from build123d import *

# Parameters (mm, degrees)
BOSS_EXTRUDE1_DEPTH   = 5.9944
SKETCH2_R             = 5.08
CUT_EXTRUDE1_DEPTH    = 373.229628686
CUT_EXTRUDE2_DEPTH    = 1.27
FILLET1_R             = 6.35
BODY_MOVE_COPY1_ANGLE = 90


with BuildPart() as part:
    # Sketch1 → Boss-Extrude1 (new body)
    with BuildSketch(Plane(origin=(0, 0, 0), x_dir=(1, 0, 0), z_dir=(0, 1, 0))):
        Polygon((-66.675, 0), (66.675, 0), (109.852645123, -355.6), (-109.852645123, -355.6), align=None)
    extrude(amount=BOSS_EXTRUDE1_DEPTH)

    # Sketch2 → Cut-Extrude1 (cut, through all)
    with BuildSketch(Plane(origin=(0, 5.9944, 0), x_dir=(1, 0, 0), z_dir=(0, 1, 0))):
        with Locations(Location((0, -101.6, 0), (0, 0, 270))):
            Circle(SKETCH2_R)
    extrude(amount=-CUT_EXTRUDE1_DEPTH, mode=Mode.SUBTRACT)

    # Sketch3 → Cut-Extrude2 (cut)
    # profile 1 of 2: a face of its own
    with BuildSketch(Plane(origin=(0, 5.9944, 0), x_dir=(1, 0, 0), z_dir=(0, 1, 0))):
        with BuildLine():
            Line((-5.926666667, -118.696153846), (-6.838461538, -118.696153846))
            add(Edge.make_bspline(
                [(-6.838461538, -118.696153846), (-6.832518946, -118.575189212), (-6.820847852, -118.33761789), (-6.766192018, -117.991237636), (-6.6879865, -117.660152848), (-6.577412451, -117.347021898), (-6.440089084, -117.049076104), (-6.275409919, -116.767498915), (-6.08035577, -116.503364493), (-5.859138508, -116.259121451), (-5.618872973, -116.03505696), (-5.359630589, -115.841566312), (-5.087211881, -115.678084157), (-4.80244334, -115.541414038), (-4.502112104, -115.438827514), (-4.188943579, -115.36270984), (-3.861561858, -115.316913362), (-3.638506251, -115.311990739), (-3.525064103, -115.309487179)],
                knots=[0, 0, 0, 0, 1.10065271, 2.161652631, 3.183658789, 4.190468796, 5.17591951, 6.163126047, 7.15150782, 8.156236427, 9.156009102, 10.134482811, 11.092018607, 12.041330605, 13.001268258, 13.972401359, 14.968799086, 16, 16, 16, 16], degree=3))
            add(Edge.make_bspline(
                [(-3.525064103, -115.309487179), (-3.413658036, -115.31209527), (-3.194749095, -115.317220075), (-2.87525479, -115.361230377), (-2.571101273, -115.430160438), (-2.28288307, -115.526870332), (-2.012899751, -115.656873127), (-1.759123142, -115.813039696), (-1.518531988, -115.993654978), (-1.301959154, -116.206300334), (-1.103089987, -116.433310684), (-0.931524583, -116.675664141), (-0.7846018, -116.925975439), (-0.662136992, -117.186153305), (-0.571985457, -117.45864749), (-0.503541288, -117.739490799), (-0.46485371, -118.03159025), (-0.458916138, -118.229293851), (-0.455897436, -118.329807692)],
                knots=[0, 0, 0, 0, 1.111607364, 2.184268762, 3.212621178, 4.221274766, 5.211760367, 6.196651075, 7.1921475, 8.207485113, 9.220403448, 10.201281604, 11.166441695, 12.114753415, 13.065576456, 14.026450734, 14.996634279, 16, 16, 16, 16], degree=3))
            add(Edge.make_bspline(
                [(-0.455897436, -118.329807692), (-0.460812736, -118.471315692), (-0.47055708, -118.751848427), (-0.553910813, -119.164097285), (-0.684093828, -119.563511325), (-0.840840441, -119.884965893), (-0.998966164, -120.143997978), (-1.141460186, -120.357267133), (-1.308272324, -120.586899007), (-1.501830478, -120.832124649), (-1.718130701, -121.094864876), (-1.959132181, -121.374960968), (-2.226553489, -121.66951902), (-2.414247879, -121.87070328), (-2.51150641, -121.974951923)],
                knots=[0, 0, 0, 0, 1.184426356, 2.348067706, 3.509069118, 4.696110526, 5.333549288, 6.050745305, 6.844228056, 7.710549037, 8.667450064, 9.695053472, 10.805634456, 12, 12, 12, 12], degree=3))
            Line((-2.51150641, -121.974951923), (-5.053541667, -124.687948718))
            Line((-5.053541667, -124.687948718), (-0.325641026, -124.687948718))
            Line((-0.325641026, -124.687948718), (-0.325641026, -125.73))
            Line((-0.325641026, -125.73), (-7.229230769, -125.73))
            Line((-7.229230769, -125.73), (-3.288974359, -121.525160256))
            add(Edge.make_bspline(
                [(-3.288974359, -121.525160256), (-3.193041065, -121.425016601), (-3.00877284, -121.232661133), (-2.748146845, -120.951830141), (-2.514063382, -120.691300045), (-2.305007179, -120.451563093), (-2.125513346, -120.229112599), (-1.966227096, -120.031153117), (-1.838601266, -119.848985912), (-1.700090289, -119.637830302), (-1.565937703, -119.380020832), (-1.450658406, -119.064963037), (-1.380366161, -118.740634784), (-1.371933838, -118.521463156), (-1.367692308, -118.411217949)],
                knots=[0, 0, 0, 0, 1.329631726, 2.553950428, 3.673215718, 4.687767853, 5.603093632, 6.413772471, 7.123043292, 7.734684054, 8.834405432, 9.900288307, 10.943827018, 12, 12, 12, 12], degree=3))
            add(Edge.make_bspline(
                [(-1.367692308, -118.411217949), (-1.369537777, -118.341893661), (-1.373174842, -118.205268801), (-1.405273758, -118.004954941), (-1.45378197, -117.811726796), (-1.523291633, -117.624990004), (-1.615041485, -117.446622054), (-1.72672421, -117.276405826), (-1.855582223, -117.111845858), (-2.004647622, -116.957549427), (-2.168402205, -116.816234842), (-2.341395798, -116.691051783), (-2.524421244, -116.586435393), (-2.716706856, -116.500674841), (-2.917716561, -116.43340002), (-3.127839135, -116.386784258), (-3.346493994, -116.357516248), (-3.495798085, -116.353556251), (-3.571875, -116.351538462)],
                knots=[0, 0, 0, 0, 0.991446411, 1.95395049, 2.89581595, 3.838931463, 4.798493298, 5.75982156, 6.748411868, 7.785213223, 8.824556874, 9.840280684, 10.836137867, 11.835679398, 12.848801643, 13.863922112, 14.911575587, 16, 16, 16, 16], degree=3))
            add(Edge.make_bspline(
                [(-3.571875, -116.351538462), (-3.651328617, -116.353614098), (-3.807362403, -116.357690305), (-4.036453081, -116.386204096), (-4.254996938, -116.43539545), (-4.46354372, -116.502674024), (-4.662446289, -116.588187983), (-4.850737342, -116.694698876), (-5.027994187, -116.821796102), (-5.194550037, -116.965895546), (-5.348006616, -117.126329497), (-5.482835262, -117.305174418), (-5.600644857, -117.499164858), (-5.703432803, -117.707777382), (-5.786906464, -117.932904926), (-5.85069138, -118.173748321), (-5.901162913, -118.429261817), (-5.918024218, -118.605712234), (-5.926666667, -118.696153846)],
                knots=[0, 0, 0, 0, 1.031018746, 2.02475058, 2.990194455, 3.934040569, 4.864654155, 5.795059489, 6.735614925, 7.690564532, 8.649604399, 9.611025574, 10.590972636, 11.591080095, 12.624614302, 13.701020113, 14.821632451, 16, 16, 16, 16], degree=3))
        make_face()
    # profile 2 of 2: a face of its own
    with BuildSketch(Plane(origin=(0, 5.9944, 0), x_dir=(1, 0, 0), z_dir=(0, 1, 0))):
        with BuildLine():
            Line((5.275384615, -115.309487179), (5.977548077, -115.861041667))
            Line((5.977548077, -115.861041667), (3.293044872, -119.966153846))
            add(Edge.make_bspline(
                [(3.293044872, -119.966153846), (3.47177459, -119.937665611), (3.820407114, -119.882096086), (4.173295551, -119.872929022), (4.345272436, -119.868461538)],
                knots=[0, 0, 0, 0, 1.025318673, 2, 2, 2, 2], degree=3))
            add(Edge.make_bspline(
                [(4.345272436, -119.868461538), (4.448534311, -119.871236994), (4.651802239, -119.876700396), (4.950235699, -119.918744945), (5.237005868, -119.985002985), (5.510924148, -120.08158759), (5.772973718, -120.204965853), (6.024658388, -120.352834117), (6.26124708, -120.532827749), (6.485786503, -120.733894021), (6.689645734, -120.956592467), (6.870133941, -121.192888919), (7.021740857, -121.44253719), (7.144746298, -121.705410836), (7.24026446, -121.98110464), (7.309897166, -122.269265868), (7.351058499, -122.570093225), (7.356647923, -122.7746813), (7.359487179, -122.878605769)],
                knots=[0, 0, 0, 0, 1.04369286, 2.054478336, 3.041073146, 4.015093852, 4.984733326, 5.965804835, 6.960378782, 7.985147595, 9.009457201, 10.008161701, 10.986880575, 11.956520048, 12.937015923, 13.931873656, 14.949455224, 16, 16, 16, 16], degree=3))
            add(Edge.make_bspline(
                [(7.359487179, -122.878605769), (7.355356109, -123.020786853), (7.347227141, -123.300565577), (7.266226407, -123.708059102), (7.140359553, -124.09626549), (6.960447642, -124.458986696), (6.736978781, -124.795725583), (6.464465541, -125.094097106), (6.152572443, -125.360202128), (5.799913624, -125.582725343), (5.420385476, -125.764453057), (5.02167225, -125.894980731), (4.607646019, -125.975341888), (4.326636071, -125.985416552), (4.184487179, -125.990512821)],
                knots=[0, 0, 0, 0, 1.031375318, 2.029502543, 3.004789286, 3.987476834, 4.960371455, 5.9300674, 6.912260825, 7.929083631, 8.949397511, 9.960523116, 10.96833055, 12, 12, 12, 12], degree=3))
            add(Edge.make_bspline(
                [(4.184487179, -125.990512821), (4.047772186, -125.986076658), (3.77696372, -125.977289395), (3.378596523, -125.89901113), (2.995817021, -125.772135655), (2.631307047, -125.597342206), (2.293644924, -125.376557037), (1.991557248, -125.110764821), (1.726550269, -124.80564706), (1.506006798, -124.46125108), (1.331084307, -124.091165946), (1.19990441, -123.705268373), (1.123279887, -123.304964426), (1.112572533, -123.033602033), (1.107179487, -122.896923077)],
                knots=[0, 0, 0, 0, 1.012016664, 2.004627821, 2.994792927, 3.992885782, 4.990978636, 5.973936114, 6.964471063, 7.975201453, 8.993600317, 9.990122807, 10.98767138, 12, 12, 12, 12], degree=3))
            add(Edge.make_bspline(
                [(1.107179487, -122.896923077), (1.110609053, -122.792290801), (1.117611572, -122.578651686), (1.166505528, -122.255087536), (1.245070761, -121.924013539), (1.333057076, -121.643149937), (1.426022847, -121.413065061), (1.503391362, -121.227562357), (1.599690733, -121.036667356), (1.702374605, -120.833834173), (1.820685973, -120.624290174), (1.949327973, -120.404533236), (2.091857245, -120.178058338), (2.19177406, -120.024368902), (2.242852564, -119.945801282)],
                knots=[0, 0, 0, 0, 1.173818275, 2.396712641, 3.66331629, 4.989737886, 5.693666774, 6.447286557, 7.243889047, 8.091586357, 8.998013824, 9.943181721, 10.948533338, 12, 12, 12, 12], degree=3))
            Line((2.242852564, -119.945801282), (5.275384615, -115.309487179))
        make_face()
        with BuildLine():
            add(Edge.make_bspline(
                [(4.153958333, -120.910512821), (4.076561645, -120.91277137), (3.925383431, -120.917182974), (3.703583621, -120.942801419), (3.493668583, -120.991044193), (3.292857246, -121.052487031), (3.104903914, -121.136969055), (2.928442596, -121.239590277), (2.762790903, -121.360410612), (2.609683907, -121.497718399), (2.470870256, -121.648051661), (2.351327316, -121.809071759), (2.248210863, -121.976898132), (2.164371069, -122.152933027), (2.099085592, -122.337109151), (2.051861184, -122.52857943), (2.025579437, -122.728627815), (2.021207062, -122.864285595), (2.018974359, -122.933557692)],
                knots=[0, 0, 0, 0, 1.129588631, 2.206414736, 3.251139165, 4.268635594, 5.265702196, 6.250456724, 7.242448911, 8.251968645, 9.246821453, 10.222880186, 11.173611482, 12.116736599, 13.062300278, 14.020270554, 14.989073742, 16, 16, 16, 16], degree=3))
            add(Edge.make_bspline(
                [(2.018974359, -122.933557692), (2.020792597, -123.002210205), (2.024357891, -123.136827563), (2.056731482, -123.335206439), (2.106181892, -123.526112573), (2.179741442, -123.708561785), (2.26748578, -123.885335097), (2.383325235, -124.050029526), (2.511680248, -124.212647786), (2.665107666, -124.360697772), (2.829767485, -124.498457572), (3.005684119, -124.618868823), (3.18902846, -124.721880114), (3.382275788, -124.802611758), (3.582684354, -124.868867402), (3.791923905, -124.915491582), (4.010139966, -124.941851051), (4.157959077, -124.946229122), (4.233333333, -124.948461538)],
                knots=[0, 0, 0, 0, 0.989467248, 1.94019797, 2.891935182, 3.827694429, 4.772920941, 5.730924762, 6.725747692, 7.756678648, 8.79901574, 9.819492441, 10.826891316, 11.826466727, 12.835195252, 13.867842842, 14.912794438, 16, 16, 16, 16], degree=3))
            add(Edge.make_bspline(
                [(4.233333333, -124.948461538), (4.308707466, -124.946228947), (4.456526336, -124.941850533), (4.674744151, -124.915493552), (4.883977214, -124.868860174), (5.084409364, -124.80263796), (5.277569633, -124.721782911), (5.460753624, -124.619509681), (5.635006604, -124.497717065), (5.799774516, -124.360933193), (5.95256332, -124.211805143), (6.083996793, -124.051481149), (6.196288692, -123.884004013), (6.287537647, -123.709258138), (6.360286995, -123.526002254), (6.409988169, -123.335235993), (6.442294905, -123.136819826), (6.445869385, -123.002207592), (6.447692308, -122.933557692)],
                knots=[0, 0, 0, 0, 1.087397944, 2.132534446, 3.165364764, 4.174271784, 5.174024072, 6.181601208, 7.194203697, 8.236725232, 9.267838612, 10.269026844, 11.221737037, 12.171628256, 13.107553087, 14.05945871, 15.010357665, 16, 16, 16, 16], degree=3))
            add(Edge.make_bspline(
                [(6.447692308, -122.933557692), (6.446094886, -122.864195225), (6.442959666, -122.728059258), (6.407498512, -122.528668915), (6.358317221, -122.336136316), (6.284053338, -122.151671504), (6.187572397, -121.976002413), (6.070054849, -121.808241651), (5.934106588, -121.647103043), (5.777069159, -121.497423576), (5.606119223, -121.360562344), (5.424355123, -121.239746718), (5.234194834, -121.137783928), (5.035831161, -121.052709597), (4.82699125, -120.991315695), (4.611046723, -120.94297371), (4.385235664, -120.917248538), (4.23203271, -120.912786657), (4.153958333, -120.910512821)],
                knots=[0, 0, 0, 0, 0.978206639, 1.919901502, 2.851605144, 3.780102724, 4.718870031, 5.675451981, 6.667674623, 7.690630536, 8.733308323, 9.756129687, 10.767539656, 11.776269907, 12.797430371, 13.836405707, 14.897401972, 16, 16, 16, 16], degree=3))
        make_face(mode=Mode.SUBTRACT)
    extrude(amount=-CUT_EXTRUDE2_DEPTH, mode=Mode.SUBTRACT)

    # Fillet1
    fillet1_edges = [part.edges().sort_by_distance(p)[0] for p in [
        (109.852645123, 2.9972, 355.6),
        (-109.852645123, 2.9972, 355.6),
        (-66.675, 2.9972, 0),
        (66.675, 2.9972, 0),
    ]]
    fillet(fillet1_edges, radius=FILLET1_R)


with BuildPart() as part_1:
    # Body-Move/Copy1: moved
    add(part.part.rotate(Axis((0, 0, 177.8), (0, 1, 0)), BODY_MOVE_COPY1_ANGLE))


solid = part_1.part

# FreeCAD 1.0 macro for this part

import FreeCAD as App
import Part
import Sketcher
from FreeCAD import Vector
Q = App.Units.Quantity


def edges_at(feature, points):
    """Names of the edges that pass closest to the given points."""
    edges = feature.Shape.Edges
    near = lambda p: min(range(len(edges)), key=lambda i: edges[i].distToShape(Part.Vertex(*p))[0])
    return sorted({f"Edge{near(p) + 1}" for p in points})


def add_polygon(sketch, points):
    """Adds a closed chain of lines whose ends are joined by coincident constraints."""
    first, n = sketch.GeometryCount, len(points)
    for a, b in zip(points, points[1:] + points[:1]):
        sketch.addGeometry(Part.LineSegment(App.Vector(*a, 0), App.Vector(*b, 0)), False)
    for i in range(n):
        sketch.addConstraint(Sketcher.Constraint("Coincident", first + i, 2, first + (i + 1) % n, 1))

doc = App.newDocument("Part")
body = doc.addObject("PartDesign::Body", "Body")

# Sketch on XZ plane
sketch1 = body.newObject("Sketcher::SketchObject", "Sketch")
sketch1.AttachmentSupport = (doc.getObject("XZ_Plane"), [""])
sketch1.MapMode = "FlatFace"
add_polygon(sketch1, [(67, 0), (-67, 0), (-110, 356), (110, 356)])  # lines 0-3
sketch1.addConstraint(Sketcher.Constraint("Horizontal", 0))
sketch1.addConstraint(Sketcher.Constraint("Horizontal", 2))
sketch1.addConstraint(Sketcher.Constraint("Symmetric", 0, 2, 3, 2, -1, 1))
sketch1.addConstraint(Sketcher.Constraint("Equal", 1, 3))
sketch1.addConstraint(Sketcher.Constraint("DistanceY", -1, 1, 1, 2, Q("14 in")))
sketch1.addConstraint(Sketcher.Constraint("DistanceX", 0, 2, 0, 1, Q("5.25 in")))
sketch1.addConstraint(Sketcher.Constraint("DistanceX", 2, 1, 2, 2, Q("219.70529 mm")))
pad1 = body.newObject("PartDesign::Pad", "Pad")
pad1.Profile = sketch1
pad1.Length = Q("0.236 in")
pad1.Reversed = True

# Sketch on XZ plane
sketch2 = body.newObject("Sketcher::SketchObject", "Sketch001")
sketch2.AttachmentSupport = (doc.getObject("XZ_Plane"), [""])
sketch2.MapMode = "FlatFace"
sketch2.AttachmentOffset = App.Placement(Vector(0, 0, -0.236 * 25.4), App.Rotation())
sketch2.addGeometry(Part.Circle(Vector(0, 102, 0), Vector(0, 0, 1), 5), False)
sketch2.addConstraint(Sketcher.Constraint("PointOnObject", 0, 3, -2))
sketch2.addConstraint(Sketcher.Constraint("Diameter", 0, Q("0.4 in")))
sketch2.addConstraint(Sketcher.Constraint("DistanceY", -1, 1, 0, 3, Q("4 in")))
pocket1 = body.newObject("PartDesign::Pocket", "Pocket")
pocket1.Profile = sketch2
pocket1.Type = "ThroughAll"
pocket1.Reversed = True

# Sketch on XZ plane
sketch3 = body.newObject("Sketcher::SketchObject", "Sketch002")
sketch3.AttachmentSupport = (doc.getObject("XZ_Plane"), [""])
sketch3.MapMode = "FlatFace"
sketch3.AttachmentOffset = App.Placement(Vector(0, 0, -0.236 * 25.4), App.Rotation())
sketch3.addGeometry(Part.LineSegment(Vector(-6.838462, 118.696154, 0), Vector(-5.926667, 118.696154, 0)), False)
sketch3.addGeometry(Part.BSplineCurve([Vector(-3.571875, 116.351538, 0), Vector(-3.651329, 116.353614, 0), Vector(-3.807362, 116.35769, 0), Vector(-4.036453, 116.386204, 0), Vector(-4.254997, 116.435395, 0), Vector(-4.463544, 116.502674, 0), Vector(-4.662446, 116.588188, 0), Vector(-4.850737, 116.694699, 0), Vector(-5.027994, 116.821796, 0), Vector(-5.19455, 116.965896, 0), Vector(-5.348007, 117.126329, 0), Vector(-5.482835, 117.305174, 0), Vector(-5.600645, 117.499165, 0), Vector(-5.703433, 117.707777, 0), Vector(-5.786906, 117.932905, 0), Vector(-5.850691, 118.173748, 0), Vector(-5.901163, 118.429262, 0), Vector(-5.918024, 118.605712, 0), Vector(-5.926667, 118.696154, 0)], [4, 1, 1, 1, 1, 1, 1, 1, 1, 1, 1, 1, 1, 1, 1, 1, 4], [0, 1.031018746, 2.02475058, 2.990194455, 3.934040569, 4.864654155, 5.795059489, 6.735614925, 7.690564532, 8.649604399, 9.611025574, 10.590972636, 11.591080095, 12.624614302, 13.701020113, 14.821632451, 16], False, 3, [1, 1, 1, 1, 1, 1, 1, 1, 1, 1, 1, 1, 1, 1, 1, 1, 1, 1, 1], False), False)
sketch3.addGeometry(Part.BSplineCurve([Vector(-1.367692, 118.411218, 0), Vector(-1.369538, 118.341894, 0), Vector(-1.373175, 118.205269, 0), Vector(-1.405274, 118.004955, 0), Vector(-1.453782, 117.811727, 0), Vector(-1.523292, 117.62499, 0), Vector(-1.615041, 117.446622, 0), Vector(-1.726724, 117.276406, 0), Vector(-1.855582, 117.111846, 0), Vector(-2.004648, 116.957549, 0), Vector(-2.168402, 116.816235, 0), Vector(-2.341396, 116.691052, 0), Vector(-2.524421, 116.586435, 0), Vector(-2.716707, 116.500675, 0), Vector(-2.917717, 116.4334, 0), Vector(-3.127839, 116.386784, 0), Vector(-3.346494, 116.357516, 0), Vector(-3.495798, 116.353556, 0), Vector(-3.571875, 116.351538, 0)], [4, 1, 1, 1, 1, 1, 1, 1, 1, 1, 1, 1, 1, 1, 1, 1, 4], [0, 0.991446411, 1.95395049, 2.89581595, 3.838931463, 4.798493298, 5.75982156, 6.748411868, 7.785213223, 8.824556874, 9.840280684, 10.836137867, 11.835679398, 12.848801643, 13.863922112, 14.911575587, 16], False, 3, [1, 1, 1, 1, 1, 1, 1, 1, 1, 1, 1, 1, 1, 1, 1, 1, 1, 1, 1], False), False)
sketch3.addGeometry(Part.BSplineCurve([Vector(-3.288974, 121.52516, 0), Vector(-3.193041, 121.425017, 0), Vector(-3.008773, 121.232661, 0), Vector(-2.748147, 120.95183, 0), Vector(-2.514063, 120.6913, 0), Vector(-2.305007, 120.451563, 0), Vector(-2.125513, 120.229113, 0), Vector(-1.966227, 120.031153, 0), Vector(-1.838601, 119.848986, 0), Vector(-1.70009, 119.63783, 0), Vector(-1.565938, 119.380021, 0), Vector(-1.450658, 119.064963, 0), Vector(-1.380366, 118.740635, 0), Vector(-1.371934, 118.521463, 0), Vector(-1.367692, 118.411218, 0)], [4, 1, 1, 1, 1, 1, 1, 1, 1, 1, 1, 1, 4], [0, 1.329631726, 2.553950428, 3.673215718, 4.687767853, 5.603093632, 6.413772471, 7.123043292, 7.734684054, 8.834405432, 9.900288307, 10.943827018, 12], False, 3, [1, 1, 1, 1, 1, 1, 1, 1, 1, 1, 1, 1, 1, 1, 1], False), False)
sketch3.addGeometry(Part.LineSegment(Vector(-3.288974, 121.52516, 0), Vector(-7.229231, 125.73, 0)), False)
sketch3.addGeometry(Part.LineSegment(Vector(-7.229231, 125.73, 0), Vector(-0.325641, 125.73, 0)), False)
sketch3.addGeometry(Part.LineSegment(Vector(-0.325641, 125.73, 0), Vector(-0.325641, 124.687949, 0)), False)
sketch3.addGeometry(Part.LineSegment(Vector(-0.325641, 124.687949, 0), Vector(-5.053542, 124.687949, 0)), False)
sketch3.addGeometry(Part.LineSegment(Vector(-5.053542, 124.687949, 0), Vector(-2.511506, 121.974952, 0)), False)
sketch3.addGeometry(Part.BSplineCurve([Vector(-0.455897, 118.329808, 0), Vector(-0.460813, 118.471316, 0), Vector(-0.470557, 118.751848, 0), Vector(-0.553911, 119.164097, 0), Vector(-0.684094, 119.563511, 0), Vector(-0.84084, 119.884966, 0), Vector(-0.998966, 120.143998, 0), Vector(-1.14146, 120.357267, 0), Vector(-1.308272, 120.586899, 0), Vector(-1.50183, 120.832125, 0), Vector(-1.718131, 121.094865, 0), Vector(-1.959132, 121.374961, 0), Vector(-2.226553, 121.669519, 0), Vector(-2.414248, 121.870703, 0), Vector(-2.511506, 121.974952, 0)], [4, 1, 1, 1, 1, 1, 1, 1, 1, 1, 1, 1, 4], [0, 1.184426356, 2.348067706, 3.509069118, 4.696110526, 5.333549288, 6.050745305, 6.844228056, 7.710549037, 8.667450064, 9.695053472, 10.805634456, 12], False, 3, [1, 1, 1, 1, 1, 1, 1, 1, 1, 1, 1, 1, 1, 1, 1], False), False)
sketch3.addGeometry(Part.BSplineCurve([Vector(-3.525064, 115.309487, 0), Vector(-3.413658, 115.312095, 0), Vector(-3.194749, 115.31722, 0), Vector(-2.875255, 115.36123, 0), Vector(-2.571101, 115.43016, 0), Vector(-2.282883, 115.52687, 0), Vector(-2.0129, 115.656873, 0), Vector(-1.759123, 115.81304, 0), Vector(-1.518532, 115.993655, 0), Vector(-1.301959, 116.2063, 0), Vector(-1.10309, 116.433311, 0), Vector(-0.931525, 116.675664, 0), Vector(-0.784602, 116.925975, 0), Vector(-0.662137, 117.186153, 0), Vector(-0.571985, 117.458647, 0), Vector(-0.503541, 117.739491, 0), Vector(-0.464854, 118.03159, 0), Vector(-0.458916, 118.229294, 0), Vector(-0.455897, 118.329808, 0)], [4, 1, 1, 1, 1, 1, 1, 1, 1, 1, 1, 1, 1, 1, 1, 1, 4], [0, 1.111607364, 2.184268762, 3.212621178, 4.221274766, 5.211760367, 6.196651075, 7.1921475, 8.207485113, 9.220403448, 10.201281604, 11.166441695, 12.114753415, 13.065576456, 14.026450734, 14.996634279, 16], False, 3, [1, 1, 1, 1, 1, 1, 1, 1, 1, 1, 1, 1, 1, 1, 1, 1, 1, 1, 1], False), False)
sketch3.addGeometry(Part.BSplineCurve([Vector(-6.838462, 118.696154, 0), Vector(-6.832519, 118.575189, 0), Vector(-6.820848, 118.337618, 0), Vector(-6.766192, 117.991238, 0), Vector(-6.687987, 117.660153, 0), Vector(-6.577412, 117.347022, 0), Vector(-6.440089, 117.049076, 0), Vector(-6.27541, 116.767499, 0), Vector(-6.080356, 116.503364, 0), Vector(-5.859139, 116.259121, 0), Vector(-5.618873, 116.035057, 0), Vector(-5.359631, 115.841566, 0), Vector(-5.087212, 115.678084, 0), Vector(-4.802443, 115.541414, 0), Vector(-4.502112, 115.438828, 0), Vector(-4.188944, 115.36271, 0), Vector(-3.861562, 115.316913, 0), Vector(-3.638506, 115.311991, 0), Vector(-3.525064, 115.309487, 0)], [4, 1, 1, 1, 1, 1, 1, 1, 1, 1, 1, 1, 1, 1, 1, 1, 4], [0, 1.10065271, 2.161652631, 3.183658789, 4.190468796, 5.17591951, 6.163126047, 7.15150782, 8.156236427, 9.156009102, 10.134482811, 11.092018607, 12.041330605, 13.001268258, 13.972401359, 14.968799086, 16], False, 3, [1, 1, 1, 1, 1, 1, 1, 1, 1, 1, 1, 1, 1, 1, 1, 1, 1, 1, 1], False), False)
sketch3.addGeometry(Part.LineSegment(Vector(5.977548, 115.861042, 0), Vector(5.275385, 115.309487, 0)), False)
sketch3.addGeometry(Part.LineSegment(Vector(5.275385, 115.309487, 0), Vector(2.242853, 119.945801, 0)), False)
sketch3.addGeometry(Part.BSplineCurve([Vector(1.107179, 122.896923, 0), Vector(1.110609, 122.792291, 0), Vector(1.117612, 122.578652, 0), Vector(1.166506, 122.255088, 0), Vector(1.245071, 121.924014, 0), Vector(1.333057, 121.64315, 0), Vector(1.426023, 121.413065, 0), Vector(1.503391, 121.227562, 0), Vector(1.599691, 121.036667, 0), Vector(1.702375, 120.833834, 0), Vector(1.820686, 120.62429, 0), Vector(1.949328, 120.404533, 0), Vector(2.091857, 120.178058, 0), Vector(2.191774, 120.024369, 0), Vector(2.242853, 119.945801, 0)], [4, 1, 1, 1, 1, 1, 1, 1, 1, 1, 1, 1, 4], [0, 1.173818275, 2.396712641, 3.66331629, 4.989737886, 5.693666774, 6.447286557, 7.243889047, 8.091586357, 8.998013824, 9.943181721, 10.948533338, 12], False, 3, [1, 1, 1, 1, 1, 1, 1, 1, 1, 1, 1, 1, 1, 1, 1], False), False)
sketch3.addGeometry(Part.BSplineCurve([Vector(4.184487, 125.990513, 0), Vector(4.047772, 125.986077, 0), Vector(3.776964, 125.977289, 0), Vector(3.378597, 125.899011, 0), Vector(2.995817, 125.772136, 0), Vector(2.631307, 125.597342, 0), Vector(2.293645, 125.376557, 0), Vector(1.991557, 125.110765, 0), Vector(1.72655, 124.805647, 0), Vector(1.506007, 124.461251, 0), Vector(1.331084, 124.091166, 0), Vector(1.199904, 123.705268, 0), Vector(1.12328, 123.304964, 0), Vector(1.112573, 123.033602, 0), Vector(1.107179, 122.896923, 0)], [4, 1, 1, 1, 1, 1, 1, 1, 1, 1, 1, 1, 4], [0, 1.012016664, 2.004627821, 2.994792927, 3.992885782, 4.990978636, 5.973936114, 6.964471063, 7.975201453, 8.993600317, 9.990122807, 10.98767138, 12], False, 3, [1, 1, 1, 1, 1, 1, 1, 1, 1, 1, 1, 1, 1, 1, 1], False), False)
sketch3.addGeometry(Part.BSplineCurve([Vector(7.359487, 122.878606, 0), Vector(7.355356, 123.020787, 0), Vector(7.347227, 123.300566, 0), Vector(7.266226, 123.708059, 0), Vector(7.14036, 124.096265, 0), Vector(6.960448, 124.458987, 0), Vector(6.736979, 124.795726, 0), Vector(6.464466, 125.094097, 0), Vector(6.152572, 125.360202, 0), Vector(5.799914, 125.582725, 0), Vector(5.420385, 125.764453, 0), Vector(5.021672, 125.894981, 0), Vector(4.607646, 125.975342, 0), Vector(4.326636, 125.985417, 0), Vector(4.184487, 125.990513, 0)], [4, 1, 1, 1, 1, 1, 1, 1, 1, 1, 1, 1, 4], [0, 1.031375318, 2.029502543, 3.004789286, 3.987476834, 4.960371455, 5.9300674, 6.912260825, 7.929083631, 8.949397511, 9.960523116, 10.96833055, 12], False, 3, [1, 1, 1, 1, 1, 1, 1, 1, 1, 1, 1, 1, 1, 1, 1], False), False)
sketch3.addGeometry(Part.BSplineCurve([Vector(4.345272, 119.868462, 0), Vector(4.448534, 119.871237, 0), Vector(4.651802, 119.8767, 0), Vector(4.950236, 119.918745, 0), Vector(5.237006, 119.985003, 0), Vector(5.510924, 120.081588, 0), Vector(5.772974, 120.204966, 0), Vector(6.024658, 120.352834, 0), Vector(6.261247, 120.532828, 0), Vector(6.485787, 120.733894, 0), Vector(6.689646, 120.956592, 0), Vector(6.870134, 121.192889, 0), Vector(7.021741, 121.442537, 0), Vector(7.144746, 121.705411, 0), Vector(7.240264, 121.981105, 0), Vector(7.309897, 122.269266, 0), Vector(7.351058, 122.570093, 0), Vector(7.356648, 122.774681, 0), Vector(7.359487, 122.878606, 0)], [4, 1, 1, 1, 1, 1, 1, 1, 1, 1, 1, 1, 1, 1, 1, 1, 4], [0, 1.04369286, 2.054478336, 3.041073146, 4.015093852, 4.984733326, 5.965804835, 6.960378782, 7.985147595, 9.009457201, 10.008161701, 10.986880575, 11.956520048, 12.937015923, 13.931873656, 14.949455224, 16], False, 3, [1, 1, 1, 1, 1, 1, 1, 1, 1, 1, 1, 1, 1, 1, 1, 1, 1, 1, 1], False), False)
sketch3.addGeometry(Part.BSplineCurve([Vector(3.293045, 119.966154, 0), Vector(3.471775, 119.937666, 0), Vector(3.820407, 119.882096, 0), Vector(4.173296, 119.872929, 0), Vector(4.345272, 119.868462, 0)], [4, 1, 4], [0, 1.025318673, 2], False, 3, [1, 1, 1, 1, 1], False), False)
sketch3.addGeometry(Part.LineSegment(Vector(3.293045, 119.966154, 0), Vector(5.977548, 115.861042, 0)), False)
sketch3.addGeometry(Part.BSplineCurve([Vector(6.447692, 122.933558, 0), Vector(6.446095, 122.864195, 0), Vector(6.44296, 122.728059, 0), Vector(6.407499, 122.528669, 0), Vector(6.358317, 122.336136, 0), Vector(6.284053, 122.151672, 0), Vector(6.187572, 121.976002, 0), Vector(6.070055, 121.808242, 0), Vector(5.934107, 121.647103, 0), Vector(5.777069, 121.497424, 0), Vector(5.606119, 121.360562, 0), Vector(5.424355, 121.239747, 0), Vector(5.234195, 121.137784, 0), Vector(5.035831, 121.05271, 0), Vector(4.826991, 120.991316, 0), Vector(4.611047, 120.942974, 0), Vector(4.385236, 120.917249, 0), Vector(4.232033, 120.912787, 0), Vector(4.153958, 120.910513, 0)], [4, 1, 1, 1, 1, 1, 1, 1, 1, 1, 1, 1, 1, 1, 1, 1, 4], [0, 0.978206639, 1.919901502, 2.851605144, 3.780102724, 4.718870031, 5.675451981, 6.667674623, 7.690630536, 8.733308323, 9.756129687, 10.767539656, 11.776269907, 12.797430371, 13.836405707, 14.897401972, 16], False, 3, [1, 1, 1, 1, 1, 1, 1, 1, 1, 1, 1, 1, 1, 1, 1, 1, 1, 1, 1], False), False)
sketch3.addGeometry(Part.BSplineCurve([Vector(4.233333, 124.948462, 0), Vector(4.308707, 124.946229, 0), Vector(4.456526, 124.941851, 0), Vector(4.674744, 124.915494, 0), Vector(4.883977, 124.86886, 0), Vector(5.084409, 124.802638, 0), Vector(5.27757, 124.721783, 0), Vector(5.460754, 124.61951, 0), Vector(5.635007, 124.497717, 0), Vector(5.799775, 124.360933, 0), Vector(5.952563, 124.211805, 0), Vector(6.083997, 124.051481, 0), Vector(6.196289, 123.884004, 0), Vector(6.287538, 123.709258, 0), Vector(6.360287, 123.526002, 0), Vector(6.409988, 123.335236, 0), Vector(6.442295, 123.13682, 0), Vector(6.445869, 123.002208, 0), Vector(6.447692, 122.933558, 0)], [4, 1, 1, 1, 1, 1, 1, 1, 1, 1, 1, 1, 1, 1, 1, 1, 4], [0, 1.087397944, 2.132534446, 3.165364764, 4.174271784, 5.174024072, 6.181601208, 7.194203697, 8.236725232, 9.267838612, 10.269026844, 11.221737037, 12.171628256, 13.107553087, 14.05945871, 15.010357665, 16], False, 3, [1, 1, 1, 1, 1, 1, 1, 1, 1, 1, 1, 1, 1, 1, 1, 1, 1, 1, 1], False), False)
sketch3.addGeometry(Part.BSplineCurve([Vector(2.018974, 122.933558, 0), Vector(2.020793, 123.00221, 0), Vector(2.024358, 123.136828, 0), Vector(2.056731, 123.335206, 0), Vector(2.106182, 123.526113, 0), Vector(2.179741, 123.708562, 0), Vector(2.267486, 123.885335, 0), Vector(2.383325, 124.05003, 0), Vector(2.51168, 124.212648, 0), Vector(2.665108, 124.360698, 0), Vector(2.829767, 124.498458, 0), Vector(3.005684, 124.618869, 0), Vector(3.189028, 124.72188, 0), Vector(3.382276, 124.802612, 0), Vector(3.582684, 124.868867, 0), Vector(3.791924, 124.915492, 0), Vector(4.01014, 124.941851, 0), Vector(4.157959, 124.946229, 0), Vector(4.233333, 124.948462, 0)], [4, 1, 1, 1, 1, 1, 1, 1, 1, 1, 1, 1, 1, 1, 1, 1, 4], [0, 0.989467248, 1.94019797, 2.891935182, 3.827694429, 4.772920941, 5.730924762, 6.725747692, 7.756678648, 8.79901574, 9.819492441, 10.826891316, 11.826466727, 12.835195252, 13.867842842, 14.912794438, 16], False, 3, [1, 1, 1, 1, 1, 1, 1, 1, 1, 1, 1, 1, 1, 1, 1, 1, 1, 1, 1], False), False)
sketch3.addGeometry(Part.BSplineCurve([Vector(4.153958, 120.910513, 0), Vector(4.076562, 120.912771, 0), Vector(3.925383, 120.917183, 0), Vector(3.703584, 120.942801, 0), Vector(3.493669, 120.991044, 0), Vector(3.292857, 121.052487, 0), Vector(3.104904, 121.136969, 0), Vector(2.928443, 121.23959, 0), Vector(2.762791, 121.360411, 0), Vector(2.609684, 121.497718, 0), Vector(2.47087, 121.648052, 0), Vector(2.351327, 121.809072, 0), Vector(2.248211, 121.976898, 0), Vector(2.164371, 122.152933, 0), Vector(2.099086, 122.337109, 0), Vector(2.051861, 122.528579, 0), Vector(2.025579, 122.728628, 0), Vector(2.021207, 122.864286, 0), Vector(2.018974, 122.933558, 0)], [4, 1, 1, 1, 1, 1, 1, 1, 1, 1, 1, 1, 1, 1, 1, 1, 4], [0, 1.129588631, 2.206414736, 3.251139165, 4.268635594, 5.265702196, 6.250456724, 7.242448911, 8.251968645, 9.246821453, 10.222880186, 11.173611482, 12.116736599, 13.062300278, 14.020270554, 14.989073742, 16], False, 3, [1, 1, 1, 1, 1, 1, 1, 1, 1, 1, 1, 1, 1, 1, 1, 1, 1, 1, 1], False), False)
sketch3.addConstraint(Sketcher.Constraint("Block", 1))
sketch3.addConstraint(Sketcher.Constraint("Block", 2))
sketch3.addConstraint(Sketcher.Constraint("Block", 3))
sketch3.addConstraint(Sketcher.Constraint("Block", 9))
sketch3.addConstraint(Sketcher.Constraint("Block", 10))
sketch3.addConstraint(Sketcher.Constraint("Block", 11))
sketch3.addConstraint(Sketcher.Constraint("Block", 14))
sketch3.addConstraint(Sketcher.Constraint("Block", 15))
sketch3.addConstraint(Sketcher.Constraint("Block", 16))
sketch3.addConstraint(Sketcher.Constraint("Block", 17))
sketch3.addConstraint(Sketcher.Constraint("Block", 18))
sketch3.addConstraint(Sketcher.Constraint("Block", 20))
sketch3.addConstraint(Sketcher.Constraint("Block", 21))
sketch3.addConstraint(Sketcher.Constraint("Block", 22))
sketch3.addConstraint(Sketcher.Constraint("Block", 23))
sketch3.addConstraint(Sketcher.Constraint("Coincident", 0, 2, 1, 2))
sketch3.addConstraint(Sketcher.Constraint("Coincident", 3, 1, 4, 1))
sketch3.addConstraint(Sketcher.Constraint("Coincident", 4, 2, 5, 1))
sketch3.addConstraint(Sketcher.Constraint("Coincident", 5, 2, 6, 1))
sketch3.addConstraint(Sketcher.Constraint("Coincident", 6, 2, 7, 1))
sketch3.addConstraint(Sketcher.Constraint("Coincident", 7, 2, 8, 1))
sketch3.addConstraint(Sketcher.Constraint("Coincident", 8, 2, 9, 2))
sketch3.addConstraint(Sketcher.Constraint("Coincident", 11, 1, 0, 1))
sketch3.addConstraint(Sketcher.Constraint("Coincident", 12, 2, 13, 1))
sketch3.addConstraint(Sketcher.Constraint("Coincident", 13, 2, 14, 2))
sketch3.addConstraint(Sketcher.Constraint("Coincident", 18, 1, 19, 1))
sketch3.addConstraint(Sketcher.Constraint("Coincident", 19, 2, 12, 1))
sketch3.addConstraint(Sketcher.Constraint("Horizontal", 5))
sketch3.addConstraint(Sketcher.Constraint("Vertical", 6))
sketch3.addConstraint(Sketcher.Constraint("Horizontal", 7))
sketch3.addConstraint(Sketcher.Constraint("DistanceY", -1, 1, 4, 2, Q("4.95 in")))
sketch3.addConstraint(Sketcher.Constraint("DistanceX", 7, 2, 7, 1, Q("4.727901 mm")))
sketch3.addConstraint(Sketcher.Constraint("DistanceX", 5, 1, 5, 2, Q("6.90359 mm")))
sketch3.addConstraint(Sketcher.Constraint("DistanceY", 6, 2, 6, 1, Q("1.042051 mm")))
sketch3.addConstraint(Sketcher.Constraint("Distance", 4, Q("5.762491 mm")))
sketch3.addConstraint(Sketcher.Constraint("DistanceX", -1, 1, 19, 2, Q("5.977548 mm")))
sketch3.addConstraint(Sketcher.Constraint("DistanceY", -1, 1, 19, 2, Q("115.861042 mm")))
sketch3.addConstraint(Sketcher.Constraint("DistanceX", 8, 2, 12, 2, Q("7.786891 mm")))
sketch3.addConstraint(Sketcher.Constraint("DistanceY", 12, 2, 6, 2, Q("9.378462 mm")))
pocket2 = body.newObject("PartDesign::Pocket", "Pocket001")
pocket2.Profile = sketch3
pocket2.Length = Q("0.05 in")
pocket2.Reversed = True
doc.recompute()

fillet = body.newObject("PartDesign::Fillet", "Fillet")
fillet.Base = (pocket2, edges_at(pocket2, [
    (109.853, 2.997, 355.6),
    (-109.853, 2.997, 355.6),
    (-66.675, 2.997, 0),
    (66.675, 2.997, 0),
]))
fillet.Radius = Q("0.25 in")
body2 = doc.addObject("PartDesign::Body", "Body001")
doc.recompute()

body.Placement = App.Placement(Vector(-177.8, 0, 177.8), App.Rotation(Vector(0, 1, 0), 90))
boolean = body2.newObject("PartDesign::Boolean", "Boolean")
boolean.Type = "Fuse"
boolean.addObjects([body])

doc.recompute()
